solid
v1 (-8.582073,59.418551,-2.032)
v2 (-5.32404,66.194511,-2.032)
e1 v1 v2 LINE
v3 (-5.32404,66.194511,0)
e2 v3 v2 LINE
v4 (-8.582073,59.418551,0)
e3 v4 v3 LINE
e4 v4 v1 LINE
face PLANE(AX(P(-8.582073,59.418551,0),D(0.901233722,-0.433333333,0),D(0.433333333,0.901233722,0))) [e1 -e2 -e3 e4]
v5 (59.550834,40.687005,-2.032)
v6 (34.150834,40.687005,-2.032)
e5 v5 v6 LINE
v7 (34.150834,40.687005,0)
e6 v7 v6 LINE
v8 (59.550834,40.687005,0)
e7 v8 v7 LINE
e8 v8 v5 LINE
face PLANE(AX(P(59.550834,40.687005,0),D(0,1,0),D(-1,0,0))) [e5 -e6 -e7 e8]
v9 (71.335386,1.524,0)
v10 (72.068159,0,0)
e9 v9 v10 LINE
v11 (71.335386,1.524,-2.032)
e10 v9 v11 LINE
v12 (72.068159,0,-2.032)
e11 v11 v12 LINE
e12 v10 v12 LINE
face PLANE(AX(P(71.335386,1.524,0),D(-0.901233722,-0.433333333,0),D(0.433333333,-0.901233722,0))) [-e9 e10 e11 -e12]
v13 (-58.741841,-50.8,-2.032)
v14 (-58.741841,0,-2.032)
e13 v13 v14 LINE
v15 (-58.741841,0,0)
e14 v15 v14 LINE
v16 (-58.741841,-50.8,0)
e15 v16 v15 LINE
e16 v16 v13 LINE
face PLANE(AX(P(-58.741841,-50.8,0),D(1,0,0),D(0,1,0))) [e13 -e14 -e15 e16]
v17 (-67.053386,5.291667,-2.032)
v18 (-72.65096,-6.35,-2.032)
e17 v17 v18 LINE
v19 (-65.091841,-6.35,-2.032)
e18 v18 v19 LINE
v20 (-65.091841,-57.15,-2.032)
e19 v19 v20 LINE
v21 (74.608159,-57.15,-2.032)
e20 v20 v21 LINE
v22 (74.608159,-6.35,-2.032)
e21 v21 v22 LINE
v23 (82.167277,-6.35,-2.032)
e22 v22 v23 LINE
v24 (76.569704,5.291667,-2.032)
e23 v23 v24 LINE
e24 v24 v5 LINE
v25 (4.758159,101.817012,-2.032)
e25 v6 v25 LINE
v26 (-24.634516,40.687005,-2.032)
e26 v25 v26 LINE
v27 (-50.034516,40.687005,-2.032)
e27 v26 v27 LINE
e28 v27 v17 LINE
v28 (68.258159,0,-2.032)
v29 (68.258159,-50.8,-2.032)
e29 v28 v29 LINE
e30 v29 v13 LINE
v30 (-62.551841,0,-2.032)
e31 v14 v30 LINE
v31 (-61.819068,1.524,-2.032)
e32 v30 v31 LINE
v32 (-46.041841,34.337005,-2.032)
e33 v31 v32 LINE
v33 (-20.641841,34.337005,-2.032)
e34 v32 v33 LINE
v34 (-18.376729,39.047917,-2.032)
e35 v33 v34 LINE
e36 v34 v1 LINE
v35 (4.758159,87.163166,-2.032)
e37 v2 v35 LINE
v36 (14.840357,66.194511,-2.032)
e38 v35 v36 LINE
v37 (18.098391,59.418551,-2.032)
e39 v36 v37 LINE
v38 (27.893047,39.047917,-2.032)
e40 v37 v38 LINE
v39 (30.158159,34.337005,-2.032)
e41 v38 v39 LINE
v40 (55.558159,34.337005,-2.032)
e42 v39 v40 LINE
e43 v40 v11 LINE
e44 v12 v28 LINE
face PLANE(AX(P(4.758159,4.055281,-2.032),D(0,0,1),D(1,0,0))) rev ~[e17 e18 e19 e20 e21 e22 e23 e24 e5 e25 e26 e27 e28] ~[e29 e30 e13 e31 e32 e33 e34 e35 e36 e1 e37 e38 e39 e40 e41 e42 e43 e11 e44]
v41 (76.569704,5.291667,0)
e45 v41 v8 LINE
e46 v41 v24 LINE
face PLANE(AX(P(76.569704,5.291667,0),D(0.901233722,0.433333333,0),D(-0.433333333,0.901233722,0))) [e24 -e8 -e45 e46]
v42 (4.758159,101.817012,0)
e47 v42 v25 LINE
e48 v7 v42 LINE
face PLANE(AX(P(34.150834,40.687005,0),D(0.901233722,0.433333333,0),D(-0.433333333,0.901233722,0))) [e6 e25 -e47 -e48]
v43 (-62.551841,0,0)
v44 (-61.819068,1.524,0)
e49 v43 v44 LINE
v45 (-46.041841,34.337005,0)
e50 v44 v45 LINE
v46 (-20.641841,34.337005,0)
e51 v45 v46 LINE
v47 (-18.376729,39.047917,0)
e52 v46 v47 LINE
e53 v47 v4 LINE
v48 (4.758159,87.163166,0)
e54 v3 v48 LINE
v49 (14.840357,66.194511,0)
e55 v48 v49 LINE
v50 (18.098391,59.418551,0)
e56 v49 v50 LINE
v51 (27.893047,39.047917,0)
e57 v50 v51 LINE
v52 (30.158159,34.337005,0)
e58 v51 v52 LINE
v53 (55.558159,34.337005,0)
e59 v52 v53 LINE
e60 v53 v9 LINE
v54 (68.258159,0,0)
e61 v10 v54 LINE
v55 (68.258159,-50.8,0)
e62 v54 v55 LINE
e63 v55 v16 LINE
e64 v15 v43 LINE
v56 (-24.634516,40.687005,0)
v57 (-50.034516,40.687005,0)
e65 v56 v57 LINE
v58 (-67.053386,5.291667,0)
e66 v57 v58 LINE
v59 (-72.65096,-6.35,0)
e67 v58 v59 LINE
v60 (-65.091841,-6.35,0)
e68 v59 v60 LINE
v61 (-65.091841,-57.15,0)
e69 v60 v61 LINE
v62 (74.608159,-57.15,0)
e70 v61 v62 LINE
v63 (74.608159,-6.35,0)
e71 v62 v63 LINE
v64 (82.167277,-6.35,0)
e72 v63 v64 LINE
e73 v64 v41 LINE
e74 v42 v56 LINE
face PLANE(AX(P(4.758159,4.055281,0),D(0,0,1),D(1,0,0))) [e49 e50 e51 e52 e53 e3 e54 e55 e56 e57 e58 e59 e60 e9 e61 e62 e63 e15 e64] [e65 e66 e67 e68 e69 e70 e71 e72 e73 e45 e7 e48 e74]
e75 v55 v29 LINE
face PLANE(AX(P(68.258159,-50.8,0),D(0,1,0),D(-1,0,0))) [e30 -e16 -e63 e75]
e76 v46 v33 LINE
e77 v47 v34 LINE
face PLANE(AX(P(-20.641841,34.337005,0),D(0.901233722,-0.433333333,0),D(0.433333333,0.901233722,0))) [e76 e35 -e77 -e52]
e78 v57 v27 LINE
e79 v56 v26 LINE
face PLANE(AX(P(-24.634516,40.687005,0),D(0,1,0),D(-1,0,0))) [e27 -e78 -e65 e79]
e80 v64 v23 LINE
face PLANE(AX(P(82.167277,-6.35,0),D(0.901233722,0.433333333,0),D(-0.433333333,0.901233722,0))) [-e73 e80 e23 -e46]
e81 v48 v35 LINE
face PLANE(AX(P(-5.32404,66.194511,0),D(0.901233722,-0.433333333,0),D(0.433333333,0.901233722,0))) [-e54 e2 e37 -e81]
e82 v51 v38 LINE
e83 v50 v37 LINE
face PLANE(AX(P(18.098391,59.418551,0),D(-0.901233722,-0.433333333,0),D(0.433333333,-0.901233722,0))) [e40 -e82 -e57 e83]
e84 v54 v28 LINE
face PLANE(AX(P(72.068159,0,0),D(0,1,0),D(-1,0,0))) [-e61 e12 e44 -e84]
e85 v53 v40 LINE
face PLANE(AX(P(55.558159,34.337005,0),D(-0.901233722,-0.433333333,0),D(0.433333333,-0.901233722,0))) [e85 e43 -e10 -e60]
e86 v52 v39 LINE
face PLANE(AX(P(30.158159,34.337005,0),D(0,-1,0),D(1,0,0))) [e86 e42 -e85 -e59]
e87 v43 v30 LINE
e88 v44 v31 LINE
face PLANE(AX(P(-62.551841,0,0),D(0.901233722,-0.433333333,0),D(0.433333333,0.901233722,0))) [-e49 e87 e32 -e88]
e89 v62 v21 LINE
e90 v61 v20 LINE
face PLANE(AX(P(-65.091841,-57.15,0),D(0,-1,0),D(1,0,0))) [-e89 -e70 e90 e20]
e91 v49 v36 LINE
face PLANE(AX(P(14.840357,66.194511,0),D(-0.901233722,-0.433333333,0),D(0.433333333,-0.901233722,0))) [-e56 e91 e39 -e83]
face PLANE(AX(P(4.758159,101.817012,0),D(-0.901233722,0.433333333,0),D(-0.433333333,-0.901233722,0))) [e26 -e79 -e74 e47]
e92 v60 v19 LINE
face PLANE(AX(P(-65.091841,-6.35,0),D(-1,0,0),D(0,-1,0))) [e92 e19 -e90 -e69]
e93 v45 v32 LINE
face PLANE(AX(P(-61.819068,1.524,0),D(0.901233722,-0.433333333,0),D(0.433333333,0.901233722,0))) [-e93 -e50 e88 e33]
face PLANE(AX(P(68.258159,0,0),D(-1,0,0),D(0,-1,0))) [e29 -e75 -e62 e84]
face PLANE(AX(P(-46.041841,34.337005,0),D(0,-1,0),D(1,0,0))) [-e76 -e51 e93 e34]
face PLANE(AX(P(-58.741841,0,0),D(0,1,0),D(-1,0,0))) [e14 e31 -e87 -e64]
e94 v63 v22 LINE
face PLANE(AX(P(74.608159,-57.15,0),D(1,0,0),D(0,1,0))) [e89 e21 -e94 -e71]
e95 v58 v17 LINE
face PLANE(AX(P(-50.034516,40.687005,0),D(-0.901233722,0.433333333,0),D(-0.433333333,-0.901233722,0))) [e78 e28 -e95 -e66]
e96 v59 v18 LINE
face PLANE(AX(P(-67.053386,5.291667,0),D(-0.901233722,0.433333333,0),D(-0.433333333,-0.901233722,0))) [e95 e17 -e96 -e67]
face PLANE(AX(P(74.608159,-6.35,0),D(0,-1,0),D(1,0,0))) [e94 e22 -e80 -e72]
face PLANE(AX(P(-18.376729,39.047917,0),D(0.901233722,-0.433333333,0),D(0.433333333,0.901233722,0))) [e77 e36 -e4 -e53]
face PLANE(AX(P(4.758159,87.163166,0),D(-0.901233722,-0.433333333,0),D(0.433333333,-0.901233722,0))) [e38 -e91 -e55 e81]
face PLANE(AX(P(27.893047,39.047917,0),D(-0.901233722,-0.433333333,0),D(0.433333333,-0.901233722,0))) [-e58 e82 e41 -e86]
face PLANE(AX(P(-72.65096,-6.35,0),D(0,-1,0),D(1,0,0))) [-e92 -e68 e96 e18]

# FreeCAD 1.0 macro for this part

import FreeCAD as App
import Part
import Sketcher

V = App.Vector
Q = App.Units.Quantity

doc = App.newDocument("Part")
params = doc.addObject("Spreadsheet::Sheet", "Params")
for row, (alias, value) in enumerate([
    ("sketch1_width", "1 in"),
    ("sketch1_width2", "5 in"),
    ("sketch1_height", "2 in"),
    ("sketch1_width3", "5.5 in"),
    ("sketch1_width4", "0.15 in"),
    ("pad1_length", "0.08 in"),
], start=1):
    params.set(f"A{row}", alias)
    params.set(f"B{row}", "=" + value)
    params.setAlias(f"B{row}", alias)

body = doc.addObject("PartDesign::Body", "Body")

# Sketch on XY plane
sketch1 = body.newObject("Sketcher::SketchObject", "Sketch")
sketch1.AttachmentSupport = (doc.getObject("XY_Plane"), [""])
sketch1.MapMode = "FlatFace"
sketch1.addGeometry([
    Part.LineSegment(V(59.6, 40.7, 0), V(34.2, 40.7, 0)),  # 0
    Part.LineSegment(V(34.2, 40.7, 0), V(4.8, 101.8, 0)),  # 1
    Part.LineSegment(V(4.8, 101.8, 0), V(-24.6, 40.7, 0)),  # 2
    Part.LineSegment(V(-24.6, 40.7, 0), V(-50, 40.7, 0)),  # 3
    Part.LineSegment(V(-50, 40.7, 0), V(-67.1, 5.3, 0)),  # 4
    Part.LineSegment(V(-67.1, 5.3, 0), V(-72.7, -6.3, 0)),  # 5
    Part.LineSegment(V(-72.7, -6.3, 0), V(-65.1, -6.3, 0)),  # 6
    Part.LineSegment(V(-65.1, -6.3, 0), V(-65.1, -57.1, 0)),  # 7
    Part.LineSegment(V(-65.1, -57.1, 0), V(74.6, -57.1, 0)),  # 8
    Part.LineSegment(V(74.6, -57.1, 0), V(74.6, -6.3, 0)),  # 9
    Part.LineSegment(V(74.6, -6.3, 0), V(82.2, -6.3, 0)),  # 10
    Part.LineSegment(V(82.2, -6.3, 0), V(76.6, 5.3, 0)),  # 11
    Part.LineSegment(V(76.6, 5.3, 0), V(59.6, 40.7, 0)),  # 12
    Part.LineSegment(V(68.3, 0, 0), V(68.3, -50.8, 0)),  # 13
    Part.LineSegment(V(68.3, -50.8, 0), V(-58.7, -50.8, 0)),  # 14
    Part.LineSegment(V(-58.7, -50.8, 0), V(-58.7, 0, 0)),  # 15
    Part.LineSegment(V(-58.7, 0, 0), V(-62.6, 0, 0)),  # 16
    Part.LineSegment(V(-62.6, 0, 0), V(-61.8, 1.5, 0)),  # 17
    Part.LineSegment(V(-61.8, 1.5, 0), V(-46, 34.3, 0)),  # 18
    Part.LineSegment(V(-46, 34.3, 0), V(-20.6, 34.3, 0)),  # 19
    Part.LineSegment(V(-20.6, 34.3, 0), V(-18.4, 39, 0)),  # 20
    Part.LineSegment(V(-18.4, 39, 0), V(-8.6, 59.4, 0)),  # 21
    Part.LineSegment(V(-8.6, 59.4, 0), V(-5.3, 66.2, 0)),  # 22
    Part.LineSegment(V(-5.3, 66.2, 0), V(4.8, 87.2, 0)),  # 23
    Part.LineSegment(V(4.8, 87.2, 0), V(14.8, 66.2, 0)),  # 24
    Part.LineSegment(V(14.8, 66.2, 0), V(18.1, 59.4, 0)),  # 25
    Part.LineSegment(V(18.1, 59.4, 0), V(27.9, 39, 0)),  # 26
    Part.LineSegment(V(27.9, 39, 0), V(30.2, 34.3, 0)),  # 27
    Part.LineSegment(V(30.2, 34.3, 0), V(55.6, 34.3, 0)),  # 28
    Part.LineSegment(V(55.6, 34.3, 0), V(71.3, 1.5, 0)),  # 29
    Part.LineSegment(V(71.3, 1.5, 0), V(72.1, 0, 0)),  # 30
    Part.LineSegment(V(72.1, 0, 0), V(68.3, 0, 0)),  # 31
], False)
sketch1.addConstraint([
    Sketcher.Constraint("Coincident", 0, 2, 1, 1),
    Sketcher.Constraint("Coincident", 1, 2, 2, 1),
    Sketcher.Constraint("Coincident", 2, 2, 3, 1),
    Sketcher.Constraint("Coincident", 3, 2, 4, 1),
    Sketcher.Constraint("Coincident", 4, 2, 5, 1),
    Sketcher.Constraint("Coincident", 5, 2, 6, 1),
    Sketcher.Constraint("Coincident", 6, 2, 7, 1),
    Sketcher.Constraint("Coincident", 7, 2, 8, 1),
    Sketcher.Constraint("Coincident", 8, 2, 9, 1),
    Sketcher.Constraint("Coincident", 9, 2, 10, 1),
    Sketcher.Constraint("Coincident", 10, 2, 11, 1),
    Sketcher.Constraint("Coincident", 11, 2, 12, 1),
    Sketcher.Constraint("Coincident", 12, 2, 0, 1),
    Sketcher.Constraint("Coincident", 13, 2, 14, 1),
    Sketcher.Constraint("Coincident", 14, 2, 15, 1),
    Sketcher.Constraint("Coincident", 15, 2, 16, 1),
    Sketcher.Constraint("Coincident", 16, 2, 17, 1),
    Sketcher.Constraint("Coincident", 17, 2, 18, 1),
    Sketcher.Constraint("Coincident", 18, 2, 19, 1),
    Sketcher.Constraint("Coincident", 19, 2, 20, 1),
    Sketcher.Constraint("Coincident", 20, 2, 21, 1),
    Sketcher.Constraint("Coincident", 21, 2, 22, 1),
    Sketcher.Constraint("Coincident", 22, 2, 23, 1),
    Sketcher.Constraint("Coincident", 23, 2, 24, 1),
    Sketcher.Constraint("Coincident", 24, 2, 25, 1),
    Sketcher.Constraint("Coincident", 25, 2, 26, 1),
    Sketcher.Constraint("Coincident", 26, 2, 27, 1),
    Sketcher.Constraint("Coincident", 27, 2, 28, 1),
    Sketcher.Constraint("Coincident", 28, 2, 29, 1),
    Sketcher.Constraint("Coincident", 29, 2, 30, 1),
    Sketcher.Constraint("Coincident", 30, 2, 31, 1),
    Sketcher.Constraint("Coincident", 31, 2, 13, 1),
    Sketcher.Constraint("Horizontal", 0),
    Sketcher.Constraint("Horizontal", 3),
    Sketcher.Constraint("Horizontal", 6),
    Sketcher.Constraint("Vertical", 7),
    Sketcher.Constraint("Horizontal", 8),
    Sketcher.Constraint("Vertical", 9),
    Sketcher.Constraint("Horizontal", 10),
    Sketcher.Constraint("Vertical", 13),
    Sketcher.Constraint("Horizontal", 14),
    Sketcher.Constraint("Vertical", 15),
    Sketcher.Constraint("Horizontal", 16),
    Sketcher.Constraint("Horizontal", 19),
    Sketcher.Constraint("Horizontal", 28),
    Sketcher.Constraint("Horizontal", 31),
    Sketcher.Constraint("PointOnObject", 15, 2, -1),
    Sketcher.Constraint("PointOnObject", 30, 2, -1),
    Sketcher.Constraint("Parallel", 2, 4),
    Sketcher.Constraint("Parallel", 4, 5),
    Sketcher.Constraint("Parallel", 1, 11),
    Sketcher.Constraint("Parallel", 11, 12),
    Sketcher.Constraint("Parallel", 5, 17),
    Sketcher.Constraint("Parallel", 17, 18),
    Sketcher.Constraint("Parallel", 18, 20),
    Sketcher.Constraint("Parallel", 20, 21),
    Sketcher.Constraint("Parallel", 21, 22),
    Sketcher.Constraint("Parallel", 22, 23),
    Sketcher.Constraint("Parallel", 12, 24),
    Sketcher.Constraint("Parallel", 24, 25),
    Sketcher.Constraint("Parallel", 25, 26),
    Sketcher.Constraint("Parallel", 26, 27),
    Sketcher.Constraint("Parallel", 27, 29),
    Sketcher.Constraint("Parallel", 29, 30),
    Sketcher.Constraint("Horizontal", 0, 2, 2, 2),
    Sketcher.Constraint("Horizontal", 6, 2, 9, 2),
    Sketcher.Constraint("Horizontal", 4, 2, 11, 2),
    Sketcher.Constraint("Horizontal", 22, 2, 24, 2),
    Sketcher.Constraint("Horizontal", 21, 2, 25, 2),
    Sketcher.Constraint("Horizontal", 20, 2, 26, 2),
    Sketcher.Constraint("Horizontal", 19, 2, 27, 2),
    Sketcher.Constraint("Horizontal", 17, 2, 29, 2),
    Sketcher.Constraint("Vertical", 1, 2, 23, 2),
    Sketcher.Constraint("Equal", 0, 3),
    Sketcher.Constraint("Equal", 6, 10),
    Sketcher.Constraint("Equal", 3, 19),
    Sketcher.Constraint("Equal", 19, 28),
    Sketcher.Constraint("Equal", 16, 31),
    Sketcher.Constraint("Equal", 9, 13),
    Sketcher.Constraint("Equal", 1, 2),
    Sketcher.Constraint("DistanceX", 0, 2, 0, 1, Q("1 in")),
    Sketcher.Constraint("DistanceX", 14, 2, 14, 1, Q("5 in")),
    Sketcher.Constraint("DistanceY", 7, 2, 7, 1, Q("2 in")),
    Sketcher.Constraint("DistanceX", 8, 1, 8, 2, Q("5.5 in")),
    Sketcher.Constraint("DistanceX", 16, 2, 16, 1, Q("0.15 in")),
    Sketcher.Constraint("DistanceX", 15, 2, 18, 2, Q("0.5 in")),
    Sketcher.Constraint("DistanceY", 5, 2, -1, 1, Q("0.25 in")),
    Sketcher.Constraint("DistanceY", -1, 1, 17, 2, Q("0.06 in")),
    Sketcher.Constraint("DistanceY", 18, 2, 3, 2, Q("0.25 in")),
    Sketcher.Constraint("DistanceX", 6, 1, 6, 2, Q("7.559119 mm")),
    Sketcher.Constraint("DistanceX", 19, 2, 22, 2, Q("15.317802 mm")),
    Sketcher.Constraint("DistanceY", 22, 2, 1, 2, Q("35.622501 mm")),
    Sketcher.Constraint("Distance", 20, Q("5.227181 mm")),
    Sketcher.Constraint("Distance", 22, Q("7.518538 mm")),
    Sketcher.Constraint("DistanceX", -1, 1, 1, 2, Q("4.758159 mm")),
    Sketcher.Constraint("DistanceX", 4, 2, 3, 2, Q("17.01887 mm")),
])
sketch1.setExpression("Constraints[80]", "Params.sketch1_width")
sketch1.setExpression("Constraints[81]", "Params.sketch1_width2")
sketch1.setExpression("Constraints[82]", "Params.sketch1_height")
sketch1.setExpression("Constraints[83]", "Params.sketch1_width3")
sketch1.setExpression("Constraints[84]", "Params.sketch1_width4")
pad1 = body.newObject("PartDesign::Pad", "Pad")
pad1.Profile = sketch1
pad1.setExpression("Length", "Params.pad1_length")
pad1.Reversed = True

doc.recompute()
